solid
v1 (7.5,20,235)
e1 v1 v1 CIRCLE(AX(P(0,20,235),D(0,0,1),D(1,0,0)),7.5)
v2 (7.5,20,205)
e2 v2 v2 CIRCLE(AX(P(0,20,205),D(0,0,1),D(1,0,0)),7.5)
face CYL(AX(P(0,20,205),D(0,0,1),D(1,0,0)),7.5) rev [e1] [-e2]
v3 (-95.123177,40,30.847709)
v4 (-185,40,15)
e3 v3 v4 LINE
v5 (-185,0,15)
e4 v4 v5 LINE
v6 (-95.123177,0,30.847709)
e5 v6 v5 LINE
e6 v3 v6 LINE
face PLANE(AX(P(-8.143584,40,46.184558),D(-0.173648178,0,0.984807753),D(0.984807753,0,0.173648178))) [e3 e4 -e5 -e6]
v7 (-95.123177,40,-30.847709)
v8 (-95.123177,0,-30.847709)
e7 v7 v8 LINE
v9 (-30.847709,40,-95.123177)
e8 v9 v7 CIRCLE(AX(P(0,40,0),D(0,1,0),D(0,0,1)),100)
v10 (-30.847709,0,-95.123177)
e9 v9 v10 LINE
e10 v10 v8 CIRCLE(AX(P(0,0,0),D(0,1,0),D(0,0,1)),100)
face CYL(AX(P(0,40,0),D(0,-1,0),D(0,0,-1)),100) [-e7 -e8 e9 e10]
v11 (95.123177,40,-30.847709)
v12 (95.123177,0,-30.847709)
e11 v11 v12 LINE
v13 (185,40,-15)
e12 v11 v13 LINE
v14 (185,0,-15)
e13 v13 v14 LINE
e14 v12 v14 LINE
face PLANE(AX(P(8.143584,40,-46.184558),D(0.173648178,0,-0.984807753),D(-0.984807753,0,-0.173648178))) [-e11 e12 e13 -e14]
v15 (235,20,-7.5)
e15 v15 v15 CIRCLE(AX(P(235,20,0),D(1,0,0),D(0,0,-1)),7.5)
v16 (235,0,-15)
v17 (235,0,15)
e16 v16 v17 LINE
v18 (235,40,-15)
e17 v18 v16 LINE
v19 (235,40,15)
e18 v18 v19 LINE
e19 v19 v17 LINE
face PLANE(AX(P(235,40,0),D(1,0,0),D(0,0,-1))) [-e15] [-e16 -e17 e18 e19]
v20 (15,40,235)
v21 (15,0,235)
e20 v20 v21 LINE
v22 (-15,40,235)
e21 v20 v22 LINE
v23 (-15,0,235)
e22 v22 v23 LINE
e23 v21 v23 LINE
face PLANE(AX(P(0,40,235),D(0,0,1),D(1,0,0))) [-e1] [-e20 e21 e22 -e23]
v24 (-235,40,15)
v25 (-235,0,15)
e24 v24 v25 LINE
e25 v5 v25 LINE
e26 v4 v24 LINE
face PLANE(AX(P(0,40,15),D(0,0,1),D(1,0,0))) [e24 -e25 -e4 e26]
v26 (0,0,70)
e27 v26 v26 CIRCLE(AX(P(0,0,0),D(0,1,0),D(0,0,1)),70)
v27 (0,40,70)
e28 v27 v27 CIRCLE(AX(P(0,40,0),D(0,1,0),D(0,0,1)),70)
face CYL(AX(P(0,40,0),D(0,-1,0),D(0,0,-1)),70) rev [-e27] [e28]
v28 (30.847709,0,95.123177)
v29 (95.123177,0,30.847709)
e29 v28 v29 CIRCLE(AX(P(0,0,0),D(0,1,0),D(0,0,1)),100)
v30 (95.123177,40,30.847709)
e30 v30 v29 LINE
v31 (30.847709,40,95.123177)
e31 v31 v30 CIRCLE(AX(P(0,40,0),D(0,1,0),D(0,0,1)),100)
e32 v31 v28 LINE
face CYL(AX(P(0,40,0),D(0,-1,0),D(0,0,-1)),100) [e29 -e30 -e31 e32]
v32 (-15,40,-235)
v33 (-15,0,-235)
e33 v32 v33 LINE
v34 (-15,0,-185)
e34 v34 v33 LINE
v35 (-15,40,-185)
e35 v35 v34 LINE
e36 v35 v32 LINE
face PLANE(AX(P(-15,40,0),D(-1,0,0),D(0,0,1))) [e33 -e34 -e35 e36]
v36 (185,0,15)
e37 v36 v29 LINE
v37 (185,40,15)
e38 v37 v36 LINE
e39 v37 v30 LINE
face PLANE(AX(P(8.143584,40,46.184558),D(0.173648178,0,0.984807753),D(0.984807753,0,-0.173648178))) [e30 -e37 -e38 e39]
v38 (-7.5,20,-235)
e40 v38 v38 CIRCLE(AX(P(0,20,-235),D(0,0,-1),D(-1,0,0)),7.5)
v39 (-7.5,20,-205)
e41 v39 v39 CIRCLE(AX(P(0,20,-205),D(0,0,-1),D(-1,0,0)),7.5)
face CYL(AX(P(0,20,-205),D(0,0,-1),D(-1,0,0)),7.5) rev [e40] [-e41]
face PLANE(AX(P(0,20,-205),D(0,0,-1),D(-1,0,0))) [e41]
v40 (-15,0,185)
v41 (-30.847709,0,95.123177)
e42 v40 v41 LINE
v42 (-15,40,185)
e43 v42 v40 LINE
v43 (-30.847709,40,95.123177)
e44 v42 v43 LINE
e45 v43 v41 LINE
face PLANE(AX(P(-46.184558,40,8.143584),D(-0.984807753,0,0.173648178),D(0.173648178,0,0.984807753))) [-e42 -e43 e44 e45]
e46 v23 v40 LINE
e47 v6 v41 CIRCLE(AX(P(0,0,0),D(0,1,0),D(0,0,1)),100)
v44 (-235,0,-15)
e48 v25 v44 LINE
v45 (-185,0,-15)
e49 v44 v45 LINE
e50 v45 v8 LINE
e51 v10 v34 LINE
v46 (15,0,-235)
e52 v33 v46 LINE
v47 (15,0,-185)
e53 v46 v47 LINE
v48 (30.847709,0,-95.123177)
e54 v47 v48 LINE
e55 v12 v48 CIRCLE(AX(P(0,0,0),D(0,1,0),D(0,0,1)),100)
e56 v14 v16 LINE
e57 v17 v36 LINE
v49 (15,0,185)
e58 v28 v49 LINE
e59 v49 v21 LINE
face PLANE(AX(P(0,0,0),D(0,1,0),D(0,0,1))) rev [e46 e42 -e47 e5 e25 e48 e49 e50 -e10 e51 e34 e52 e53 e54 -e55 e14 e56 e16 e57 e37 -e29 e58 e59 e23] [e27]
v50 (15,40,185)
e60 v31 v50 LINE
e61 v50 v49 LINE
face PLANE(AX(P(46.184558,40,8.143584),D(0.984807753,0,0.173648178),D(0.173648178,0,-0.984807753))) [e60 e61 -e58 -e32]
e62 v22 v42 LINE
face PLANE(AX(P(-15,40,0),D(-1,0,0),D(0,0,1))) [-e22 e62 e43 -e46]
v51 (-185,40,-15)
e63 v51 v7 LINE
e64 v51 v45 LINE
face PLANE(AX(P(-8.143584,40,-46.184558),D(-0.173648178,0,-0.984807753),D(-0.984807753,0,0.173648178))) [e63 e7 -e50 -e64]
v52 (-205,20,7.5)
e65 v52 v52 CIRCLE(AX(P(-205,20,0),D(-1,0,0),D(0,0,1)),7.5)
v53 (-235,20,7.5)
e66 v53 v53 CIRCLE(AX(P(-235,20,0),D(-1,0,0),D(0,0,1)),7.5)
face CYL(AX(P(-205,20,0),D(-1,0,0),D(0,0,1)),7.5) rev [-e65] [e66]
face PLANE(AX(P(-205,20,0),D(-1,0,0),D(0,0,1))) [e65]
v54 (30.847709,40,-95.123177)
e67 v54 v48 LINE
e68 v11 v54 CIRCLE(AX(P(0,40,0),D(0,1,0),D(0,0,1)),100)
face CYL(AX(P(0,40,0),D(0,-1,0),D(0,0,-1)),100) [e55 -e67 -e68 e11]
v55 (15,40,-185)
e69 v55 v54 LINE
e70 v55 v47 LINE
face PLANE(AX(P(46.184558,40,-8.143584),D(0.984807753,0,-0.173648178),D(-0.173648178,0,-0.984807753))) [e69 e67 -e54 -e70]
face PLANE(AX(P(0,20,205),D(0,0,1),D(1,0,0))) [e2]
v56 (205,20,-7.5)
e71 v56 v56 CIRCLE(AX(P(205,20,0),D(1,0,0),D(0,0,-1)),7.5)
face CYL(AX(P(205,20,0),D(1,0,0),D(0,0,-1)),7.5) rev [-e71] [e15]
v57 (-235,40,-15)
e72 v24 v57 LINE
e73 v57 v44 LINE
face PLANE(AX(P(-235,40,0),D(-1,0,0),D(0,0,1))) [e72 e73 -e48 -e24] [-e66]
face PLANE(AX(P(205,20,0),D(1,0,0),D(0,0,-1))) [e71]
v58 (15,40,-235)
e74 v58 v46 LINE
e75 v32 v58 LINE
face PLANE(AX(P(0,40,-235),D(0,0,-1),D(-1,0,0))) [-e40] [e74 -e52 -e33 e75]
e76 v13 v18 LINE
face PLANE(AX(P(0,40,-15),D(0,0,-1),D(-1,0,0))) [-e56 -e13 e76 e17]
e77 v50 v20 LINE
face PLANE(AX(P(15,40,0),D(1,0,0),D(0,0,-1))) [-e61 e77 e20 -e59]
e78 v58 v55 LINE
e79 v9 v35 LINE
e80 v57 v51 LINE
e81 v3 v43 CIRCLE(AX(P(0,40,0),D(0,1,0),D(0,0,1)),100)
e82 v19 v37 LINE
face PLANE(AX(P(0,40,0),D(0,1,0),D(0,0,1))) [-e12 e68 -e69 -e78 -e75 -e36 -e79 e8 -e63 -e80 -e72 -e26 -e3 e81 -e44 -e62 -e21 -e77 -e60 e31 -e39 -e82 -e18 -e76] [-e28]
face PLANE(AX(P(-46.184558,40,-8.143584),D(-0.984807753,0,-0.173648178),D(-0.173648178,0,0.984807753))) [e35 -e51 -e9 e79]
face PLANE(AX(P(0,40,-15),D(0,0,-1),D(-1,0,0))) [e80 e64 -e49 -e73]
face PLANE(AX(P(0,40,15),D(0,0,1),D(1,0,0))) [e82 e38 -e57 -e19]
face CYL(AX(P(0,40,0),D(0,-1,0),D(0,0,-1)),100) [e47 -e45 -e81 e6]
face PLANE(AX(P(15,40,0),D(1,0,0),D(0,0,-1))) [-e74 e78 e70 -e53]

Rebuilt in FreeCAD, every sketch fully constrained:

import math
import FreeCAD as App
import Part
import Sketcher
Q = App.Units.Quantity

doc = App.newDocument("Part")
body = doc.addObject("PartDesign::Body", "Body")

# Sketch on XZ plane
sketch1 = body.newObject("Sketcher::SketchObject", "Sketch")
sketch1.AttachmentSupport = (doc.getObject("XZ_Plane"), [""])
sketch1.MapMode = "FlatFace"
sketch1.addGeometry(Part.LineSegment(App.Vector(185, -15, 0), App.Vector(95, -31, 0)), False)
sketch1.addGeometry(Part.ArcOfCircle(Part.Circle(App.Vector(0, 0, 0), App.Vector(0, 0, 1), 100), math.radians(-72), math.radians(-18)), False)
sketch1.addGeometry(Part.LineSegment(App.Vector(31, -95, 0), App.Vector(15, -185, 0)), False)
sketch1.addGeometry(Part.LineSegment(App.Vector(15, -185, 0), App.Vector(15, -235, 0)), False)
sketch1.addGeometry(Part.LineSegment(App.Vector(15, -235, 0), App.Vector(-15, -235, 0)), False)
sketch1.addGeometry(Part.LineSegment(App.Vector(-15, -235, 0), App.Vector(-15, -185, 0)), False)
sketch1.addGeometry(Part.LineSegment(App.Vector(-15, -185, 0), App.Vector(-31, -95, 0)), False)
sketch1.addGeometry(Part.ArcOfCircle(Part.Circle(App.Vector(0, 0, 0), App.Vector(0, 0, 1), 100), math.radians(-162), math.radians(-108)), False)
sketch1.addGeometry(Part.LineSegment(App.Vector(-95, -31, 0), App.Vector(-185, -15, 0)), False)
sketch1.addGeometry(Part.LineSegment(App.Vector(-185, -15, 0), App.Vector(-235, -15, 0)), False)
sketch1.addGeometry(Part.LineSegment(App.Vector(-235, -15, 0), App.Vector(-235, 15, 0)), False)
sketch1.addGeometry(Part.LineSegment(App.Vector(-235, 15, 0), App.Vector(-185, 15, 0)), False)
sketch1.addGeometry(Part.LineSegment(App.Vector(-185, 15, 0), App.Vector(-95, 31, 0)), False)
sketch1.addGeometry(Part.ArcOfCircle(Part.Circle(App.Vector(0, 0, 0), App.Vector(0, 0, 1), 100), math.radians(108), math.radians(162)), False)
sketch1.addGeometry(Part.LineSegment(App.Vector(-31, 95, 0), App.Vector(-15, 185, 0)), False)
sketch1.addGeometry(Part.LineSegment(App.Vector(-15, 185, 0), App.Vector(-15, 235, 0)), False)
sketch1.addGeometry(Part.LineSegment(App.Vector(-15, 235, 0), App.Vector(15, 235, 0)), False)
sketch1.addGeometry(Part.LineSegment(App.Vector(15, 235, 0), App.Vector(15, 185, 0)), False)
sketch1.addGeometry(Part.LineSegment(App.Vector(15, 185, 0), App.Vector(31, 95, 0)), False)
sketch1.addGeometry(Part.ArcOfCircle(Part.Circle(App.Vector(0, 0, 0), App.Vector(0, 0, 1), 100), math.radians(18), math.radians(72)), False)
sketch1.addGeometry(Part.LineSegment(App.Vector(95, 31, 0), App.Vector(185, 15, 0)), False)
sketch1.addGeometry(Part.LineSegment(App.Vector(185, 15, 0), App.Vector(235, 15, 0)), False)
sketch1.addGeometry(Part.LineSegment(App.Vector(235, 15, 0), App.Vector(235, -15, 0)), False)
sketch1.addGeometry(Part.LineSegment(App.Vector(235, -15, 0), App.Vector(185, -15, 0)), False)
sketch1.addGeometry(Part.Circle(App.Vector(0, 0, 0), App.Vector(0, 0, 1), 70), False)
sketch1.addConstraint(Sketcher.Constraint("Coincident", 0, 2, 1, 2))
sketch1.addConstraint(Sketcher.Constraint("Coincident", 1, 1, 2, 1))
sketch1.addConstraint(Sketcher.Constraint("Coincident", 2, 2, 3, 1))
sketch1.addConstraint(Sketcher.Constraint("Coincident", 3, 2, 4, 1))
sketch1.addConstraint(Sketcher.Constraint("Coincident", 4, 2, 5, 1))
sketch1.addConstraint(Sketcher.Constraint("Coincident", 5, 2, 6, 1))
sketch1.addConstraint(Sketcher.Constraint("Coincident", 6, 2, 7, 2))
sketch1.addConstraint(Sketcher.Constraint("Coincident", 7, 1, 8, 1))
sketch1.addConstraint(Sketcher.Constraint("Coincident", 8, 2, 9, 1))
sketch1.addConstraint(Sketcher.Constraint("Coincident", 9, 2, 10, 1))
sketch1.addConstraint(Sketcher.Constraint("Coincident", 10, 2, 11, 1))
sketch1.addConstraint(Sketcher.Constraint("Coincident", 11, 2, 12, 1))
sketch1.addConstraint(Sketcher.Constraint("Coincident", 12, 2, 13, 2))
sketch1.addConstraint(Sketcher.Constraint("Coincident", 13, 1, 14, 1))
sketch1.addConstraint(Sketcher.Constraint("Coincident", 14, 2, 15, 1))
sketch1.addConstraint(Sketcher.Constraint("Coincident", 15, 2, 16, 1))
sketch1.addConstraint(Sketcher.Constraint("Coincident", 16, 2, 17, 1))
sketch1.addConstraint(Sketcher.Constraint("Coincident", 17, 2, 18, 1))
sketch1.addConstraint(Sketcher.Constraint("Coincident", 18, 2, 19, 2))
sketch1.addConstraint(Sketcher.Constraint("Coincident", 19, 1, 20, 1))
sketch1.addConstraint(Sketcher.Constraint("Coincident", 20, 2, 21, 1))
sketch1.addConstraint(Sketcher.Constraint("Coincident", 21, 2, 22, 1))
sketch1.addConstraint(Sketcher.Constraint("Coincident", 22, 2, 23, 1))
sketch1.addConstraint(Sketcher.Constraint("Coincident", 23, 2, 0, 1))
sketch1.addConstraint(Sketcher.Constraint("Vertical", 3))
sketch1.addConstraint(Sketcher.Constraint("Horizontal", 4))
sketch1.addConstraint(Sketcher.Constraint("Vertical", 5))
sketch1.addConstraint(Sketcher.Constraint("Horizontal", 9))
sketch1.addConstraint(Sketcher.Constraint("Vertical", 10))
sketch1.addConstraint(Sketcher.Constraint("Horizontal", 11))
sketch1.addConstraint(Sketcher.Constraint("Vertical", 15))
sketch1.addConstraint(Sketcher.Constraint("Horizontal", 16))
sketch1.addConstraint(Sketcher.Constraint("Vertical", 17))
sketch1.addConstraint(Sketcher.Constraint("Horizontal", 21))
sketch1.addConstraint(Sketcher.Constraint("Vertical", 22))
sketch1.addConstraint(Sketcher.Constraint("Horizontal", 23))
sketch1.addConstraint(Sketcher.Constraint("Coincident", 1, 3, -1, 1))
sketch1.addConstraint(Sketcher.Constraint("Coincident", 7, 3, -1, 1))
sketch1.addConstraint(Sketcher.Constraint("Coincident", 13, 3, -1, 1))
sketch1.addConstraint(Sketcher.Constraint("Coincident", 19, 3, -1, 1))
sketch1.addConstraint(Sketcher.Constraint("Coincident", 24, 3, -1, 1))
sketch1.addConstraint(Sketcher.Constraint("Equal", 1, 7))
sketch1.addConstraint(Sketcher.Constraint("Equal", 7, 13))
sketch1.addConstraint(Sketcher.Constraint("Equal", 13, 19))
sketch1.addConstraint(Sketcher.Constraint("Symmetric", 2, 2, 14, 2, -1, 1))
sketch1.addConstraint(Sketcher.Constraint("Symmetric", 4, 2, 16, 2, -1, 1))
sketch1.addConstraint(Sketcher.Constraint("Symmetric", 8, 2, 20, 2, -1, 1))
sketch1.addConstraint(Sketcher.Constraint("Symmetric", 10, 2, 22, 2, -1, 1))
sketch1.addConstraint(Sketcher.Constraint("Symmetric", 2, 2, 5, 2, -2))
sketch1.addConstraint(Sketcher.Constraint("Symmetric", 11, 2, 20, 2, -2))
sketch1.addConstraint(Sketcher.Constraint("Perpendicular", 0, 6))
sketch1.addConstraint(Sketcher.Constraint("Perpendicular", 2, 8))
sketch1.addConstraint(Sketcher.Constraint("Perpendicular", 6, 12))
sketch1.addConstraint(Sketcher.Constraint("Perpendicular", 8, 14))
sketch1.addConstraint(Sketcher.Constraint("Perpendicular", 12, 18))
sketch1.addConstraint(Sketcher.Constraint("Perpendicular", 14, 20))
sketch1.addConstraint(Sketcher.Constraint("Horizontal", 1, 1, 6, 2))
sketch1.addConstraint(Sketcher.Constraint("Horizontal", 14, 2, 17, 2))
sketch1.addConstraint(Sketcher.Constraint("Vertical", 20, 2, 23, 2))
sketch1.addConstraint(Sketcher.Constraint("Equal", 23, 3))
sketch1.addConstraint(Sketcher.Constraint("Equal", 16, 10))
sketch1.addConstraint(Sketcher.Constraint("Equal", 0, 2))
sketch1.addConstraint(Sketcher.Constraint("Diameter", 24, Q("140 mm")))
sketch1.addConstraint(Sketcher.Constraint("Radius", 1, Q("100 mm")))
sketch1.addConstraint(Sketcher.Constraint("DistanceX", 4, 2, 4, 1, Q("30 mm")))
sketch1.addConstraint(Sketcher.Constraint("DistanceX", 9, 2, 9, 1, Q("50 mm")))
sketch1.addConstraint(Sketcher.Constraint("Angle", 0, Q("-170 deg")))
sketch1.addConstraint(Sketcher.Constraint("DistanceY", 2, 2, -1, 1, Q("185 mm")))
pad1 = body.newObject("PartDesign::Pad", "Pad")
pad1.Profile = sketch1
pad1.Length = 40
pad1.Reversed = True

# Sketch on XY plane
sketch2 = body.newObject("Sketcher::SketchObject", "Sketch001")
sketch2.AttachmentSupport = (doc.getObject("XY_Plane"), [""])
sketch2.MapMode = "FlatFace"
sketch2.AttachmentOffset = App.Placement(App.Vector(0, 0, 235), App.Rotation())
sketch2.addGeometry(Part.Circle(App.Vector(0, 20, 0), App.Vector(0, 0, 1), 8), False)
sketch2.addConstraint(Sketcher.Constraint("PointOnObject", 0, 3, -2))
sketch2.addConstraint(Sketcher.Constraint("Diameter", 0, Q("15 mm")))
sketch2.addConstraint(Sketcher.Constraint("DistanceY", -1, 1, 0, 3, Q("20 mm")))
pocket1 = body.newObject("PartDesign::Pocket", "Pocket")
pocket1.Profile = sketch2
pocket1.Length = 30
doc.recompute()

polarpattern = body.newObject("PartDesign::PolarPattern", "PolarPattern")
polarpattern.Originals = [pocket1]
polarpattern.Axis = (doc.getObject("Y_Axis"), [""])
polarpattern.Angle = 360
polarpattern.Occurrences = 4
body.Tip = polarpattern

doc.recompute()
